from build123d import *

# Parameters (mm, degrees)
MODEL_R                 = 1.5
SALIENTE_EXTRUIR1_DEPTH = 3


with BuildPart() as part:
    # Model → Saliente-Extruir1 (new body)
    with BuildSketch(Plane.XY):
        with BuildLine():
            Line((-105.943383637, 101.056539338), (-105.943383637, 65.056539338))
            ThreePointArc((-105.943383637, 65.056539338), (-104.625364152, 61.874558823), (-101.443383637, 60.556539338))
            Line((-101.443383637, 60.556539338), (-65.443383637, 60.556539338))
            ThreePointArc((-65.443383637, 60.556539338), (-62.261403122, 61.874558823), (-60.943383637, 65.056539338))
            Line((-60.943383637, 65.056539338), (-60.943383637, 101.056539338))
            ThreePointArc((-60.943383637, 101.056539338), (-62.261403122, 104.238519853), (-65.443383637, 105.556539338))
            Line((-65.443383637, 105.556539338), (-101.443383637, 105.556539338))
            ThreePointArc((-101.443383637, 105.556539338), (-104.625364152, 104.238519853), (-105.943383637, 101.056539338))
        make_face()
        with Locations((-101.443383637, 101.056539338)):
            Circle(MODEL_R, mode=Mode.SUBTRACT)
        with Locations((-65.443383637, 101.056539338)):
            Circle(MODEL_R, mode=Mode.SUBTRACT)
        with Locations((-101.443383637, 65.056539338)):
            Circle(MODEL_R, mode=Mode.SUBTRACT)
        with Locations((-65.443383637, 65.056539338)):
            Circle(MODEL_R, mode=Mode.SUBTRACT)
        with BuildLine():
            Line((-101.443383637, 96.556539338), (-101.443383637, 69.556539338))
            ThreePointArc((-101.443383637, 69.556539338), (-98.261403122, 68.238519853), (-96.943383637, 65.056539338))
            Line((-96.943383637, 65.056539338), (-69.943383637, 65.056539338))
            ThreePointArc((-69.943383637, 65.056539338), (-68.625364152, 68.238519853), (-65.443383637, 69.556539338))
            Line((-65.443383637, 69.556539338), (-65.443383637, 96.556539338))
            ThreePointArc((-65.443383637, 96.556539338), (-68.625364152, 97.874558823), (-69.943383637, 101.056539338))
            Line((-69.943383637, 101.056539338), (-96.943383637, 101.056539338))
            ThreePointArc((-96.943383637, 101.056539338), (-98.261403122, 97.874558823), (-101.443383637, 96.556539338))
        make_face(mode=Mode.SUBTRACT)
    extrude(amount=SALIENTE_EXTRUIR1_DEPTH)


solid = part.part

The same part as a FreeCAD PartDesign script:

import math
import FreeCAD as App
import Part
import Sketcher

doc = App.newDocument("Part")
body = doc.addObject("PartDesign::Body", "Body")

# Sketch on XY plane
sketch1 = body.newObject("Sketcher::SketchObject", "Sketch")
sketch1.AttachmentSupport = (doc.getObject("XY_Plane"), [""])
sketch1.MapMode = "FlatFace"
sketch1.addGeometry([
    Part.LineSegment(App.Vector(-105.943384, 101.056539, 0), App.Vector(-105.943384, 65.056539, 0)),  # 0
    Part.ArcOfCircle(Part.Circle(App.Vector(-101.443384, 65.056539, 0), App.Vector(0, 0, 1), 4.5), math.radians(-180), math.radians(-90)),  # 1
    Part.LineSegment(App.Vector(-101.443384, 60.556539, 0), App.Vector(-65.443384, 60.556539, 0)),  # 2
    Part.ArcOfCircle(Part.Circle(App.Vector(-65.443384, 65.056539, 0), App.Vector(0, 0, 1), 4.5), math.radians(-90), math.radians(0)),  # 3
    Part.LineSegment(App.Vector(-60.943384, 65.056539, 0), App.Vector(-60.943384, 101.056539, 0)),  # 4
    Part.ArcOfCircle(Part.Circle(App.Vector(-65.443384, 101.056539, 0), App.Vector(0, 0, 1), 4.5), math.radians(0), math.radians(90)),  # 5
    Part.LineSegment(App.Vector(-65.443384, 105.556539, 0), App.Vector(-101.443384, 105.556539, 0)),  # 6
    Part.ArcOfCircle(Part.Circle(App.Vector(-101.443384, 101.056539, 0), App.Vector(0, 0, 1), 4.5), math.radians(90), math.radians(180)),  # 7
    Part.Circle(App.Vector(-101.443384, 65.056539, 0), App.Vector(0, 0, 1), 1.5),  # 8
    Part.Circle(App.Vector(-65.443384, 65.056539, 0), App.Vector(0, 0, 1), 1.5),  # 9
    Part.Circle(App.Vector(-101.443384, 101.056539, 0), App.Vector(0, 0, 1), 1.5),  # 10
    Part.LineSegment(App.Vector(-101.443384, 69.556539, 0), App.Vector(-101.443384, 96.556539, 0)),  # 11
    Part.ArcOfCircle(Part.Circle(App.Vector(-101.443384, 101.056539, 0), App.Vector(0, 0, 1), 4.5), math.radians(-90), math.radians(0)),  # 12
    Part.LineSegment(App.Vector(-96.943384, 101.056539, 0), App.Vector(-69.943384, 101.056539, 0)),  # 13
    Part.ArcOfCircle(Part.Circle(App.Vector(-65.443384, 101.056539, 0), App.Vector(0, 0, 1), 4.5), math.radians(-180), math.radians(-90)),  # 14
    Part.LineSegment(App.Vector(-65.443384, 96.556539, 0), App.Vector(-65.443384, 69.556539, 0)),  # 15
    Part.ArcOfCircle(Part.Circle(App.Vector(-65.443384, 65.056539, 0), App.Vector(0, 0, 1), 4.5), math.radians(90), math.radians(180)),  # 16
    Part.LineSegment(App.Vector(-69.943384, 65.056539, 0), App.Vector(-96.943384, 65.056539, 0)),  # 17
    Part.ArcOfCircle(Part.Circle(App.Vector(-101.443384, 65.056539, 0), App.Vector(0, 0, 1), 4.5), math.radians(0), math.radians(90)),  # 18
    Part.Circle(App.Vector(-65.443384, 101.056539, 0), App.Vector(0, 0, 1), 1.5),  # 19
], False)
sketch1.addConstraint([
    Sketcher.Constraint("Tangent", 0, 2, 1, 1),
    Sketcher.Constraint("Tangent", 1, 2, 2, 1),
    Sketcher.Constraint("Tangent", 2, 2, 3, 1),
    Sketcher.Constraint("Tangent", 3, 2, 4, 1),
    Sketcher.Constraint("Tangent", 4, 2, 5, 1),
    Sketcher.Constraint("Tangent", 5, 2, 6, 1),
    Sketcher.Constraint("Tangent", 6, 2, 7, 1),
    Sketcher.Constraint("Tangent", 7, 2, 0, 1),
    Sketcher.Constraint("Coincident", 11, 2, 12, 1),
    Sketcher.Constraint("Coincident", 12, 2, 13, 1),
    Sketcher.Constraint("Coincident", 13, 2, 14, 1),
    Sketcher.Constraint("Coincident", 14, 2, 15, 1),
    Sketcher.Constraint("Coincident", 15, 2, 16, 1),
    Sketcher.Constraint("Coincident", 16, 2, 17, 1),
    Sketcher.Constraint("Coincident", 17, 2, 18, 1),
    Sketcher.Constraint("Coincident", 18, 2, 11, 1),
    Sketcher.Constraint("Vertical", 0),
    Sketcher.Constraint("Horizontal", 2),
    Sketcher.Constraint("Vertical", 4),
    Sketcher.Constraint("Horizontal", 6),
    Sketcher.Constraint("Vertical", 11),
    Sketcher.Constraint("Horizontal", 13),
    Sketcher.Constraint("Vertical", 15),
    Sketcher.Constraint("Horizontal", 17),
    Sketcher.Constraint("Coincident", 8, 3, 1, 3),
    Sketcher.Constraint("Coincident", 9, 3, 3, 3),
    Sketcher.Constraint("Coincident", 10, 3, 7, 3),
    Sketcher.Constraint("Coincident", 12, 3, 7, 3),
    Sketcher.Constraint("Coincident", 14, 3, 5, 3),
    Sketcher.Constraint("Coincident", 16, 3, 3, 3),
    Sketcher.Constraint("Coincident", 18, 3, 1, 3),
    Sketcher.Constraint("Coincident", 19, 3, 5, 3),
    Sketcher.Constraint("Equal", 1, 3),
    Sketcher.Constraint("Equal", 3, 5),
    Sketcher.Constraint("Equal", 5, 7),
    Sketcher.Constraint("Equal", 8, 9),
    Sketcher.Constraint("Equal", 9, 10),
    Sketcher.Constraint("Equal", 7, 12),
    Sketcher.Constraint("Equal", 12, 14),
    Sketcher.Constraint("Equal", 14, 16),
    Sketcher.Constraint("Equal", 16, 18),
    Sketcher.Constraint("Equal", 10, 19),
    Sketcher.Constraint("Horizontal", 7, 2, 12, 2),
    Sketcher.Constraint("Horizontal", 3, 2, 16, 2),
    Sketcher.Constraint("Vertical", 6, 2, 11, 2),
    Sketcher.Constraint("Vertical", 5, 2, 14, 2),
    Sketcher.Constraint("Equal", 6, 0),
    Sketcher.Constraint("Diameter", 8, 3.0),
    Sketcher.Constraint("Radius", 1, 4.5),
    Sketcher.Constraint("DistanceX", 2, 1, 2, 2, 36.0),
    Sketcher.Constraint("DistanceY", -1, 1, 1, 3, 65.056539),
    Sketcher.Constraint("DistanceX", 1, 3, -1, 1, 101.443384),
])
pad1 = body.newObject("PartDesign::Pad", "Pad")
pad1.Profile = sketch1
pad1.Length = 3

doc.recompute()
